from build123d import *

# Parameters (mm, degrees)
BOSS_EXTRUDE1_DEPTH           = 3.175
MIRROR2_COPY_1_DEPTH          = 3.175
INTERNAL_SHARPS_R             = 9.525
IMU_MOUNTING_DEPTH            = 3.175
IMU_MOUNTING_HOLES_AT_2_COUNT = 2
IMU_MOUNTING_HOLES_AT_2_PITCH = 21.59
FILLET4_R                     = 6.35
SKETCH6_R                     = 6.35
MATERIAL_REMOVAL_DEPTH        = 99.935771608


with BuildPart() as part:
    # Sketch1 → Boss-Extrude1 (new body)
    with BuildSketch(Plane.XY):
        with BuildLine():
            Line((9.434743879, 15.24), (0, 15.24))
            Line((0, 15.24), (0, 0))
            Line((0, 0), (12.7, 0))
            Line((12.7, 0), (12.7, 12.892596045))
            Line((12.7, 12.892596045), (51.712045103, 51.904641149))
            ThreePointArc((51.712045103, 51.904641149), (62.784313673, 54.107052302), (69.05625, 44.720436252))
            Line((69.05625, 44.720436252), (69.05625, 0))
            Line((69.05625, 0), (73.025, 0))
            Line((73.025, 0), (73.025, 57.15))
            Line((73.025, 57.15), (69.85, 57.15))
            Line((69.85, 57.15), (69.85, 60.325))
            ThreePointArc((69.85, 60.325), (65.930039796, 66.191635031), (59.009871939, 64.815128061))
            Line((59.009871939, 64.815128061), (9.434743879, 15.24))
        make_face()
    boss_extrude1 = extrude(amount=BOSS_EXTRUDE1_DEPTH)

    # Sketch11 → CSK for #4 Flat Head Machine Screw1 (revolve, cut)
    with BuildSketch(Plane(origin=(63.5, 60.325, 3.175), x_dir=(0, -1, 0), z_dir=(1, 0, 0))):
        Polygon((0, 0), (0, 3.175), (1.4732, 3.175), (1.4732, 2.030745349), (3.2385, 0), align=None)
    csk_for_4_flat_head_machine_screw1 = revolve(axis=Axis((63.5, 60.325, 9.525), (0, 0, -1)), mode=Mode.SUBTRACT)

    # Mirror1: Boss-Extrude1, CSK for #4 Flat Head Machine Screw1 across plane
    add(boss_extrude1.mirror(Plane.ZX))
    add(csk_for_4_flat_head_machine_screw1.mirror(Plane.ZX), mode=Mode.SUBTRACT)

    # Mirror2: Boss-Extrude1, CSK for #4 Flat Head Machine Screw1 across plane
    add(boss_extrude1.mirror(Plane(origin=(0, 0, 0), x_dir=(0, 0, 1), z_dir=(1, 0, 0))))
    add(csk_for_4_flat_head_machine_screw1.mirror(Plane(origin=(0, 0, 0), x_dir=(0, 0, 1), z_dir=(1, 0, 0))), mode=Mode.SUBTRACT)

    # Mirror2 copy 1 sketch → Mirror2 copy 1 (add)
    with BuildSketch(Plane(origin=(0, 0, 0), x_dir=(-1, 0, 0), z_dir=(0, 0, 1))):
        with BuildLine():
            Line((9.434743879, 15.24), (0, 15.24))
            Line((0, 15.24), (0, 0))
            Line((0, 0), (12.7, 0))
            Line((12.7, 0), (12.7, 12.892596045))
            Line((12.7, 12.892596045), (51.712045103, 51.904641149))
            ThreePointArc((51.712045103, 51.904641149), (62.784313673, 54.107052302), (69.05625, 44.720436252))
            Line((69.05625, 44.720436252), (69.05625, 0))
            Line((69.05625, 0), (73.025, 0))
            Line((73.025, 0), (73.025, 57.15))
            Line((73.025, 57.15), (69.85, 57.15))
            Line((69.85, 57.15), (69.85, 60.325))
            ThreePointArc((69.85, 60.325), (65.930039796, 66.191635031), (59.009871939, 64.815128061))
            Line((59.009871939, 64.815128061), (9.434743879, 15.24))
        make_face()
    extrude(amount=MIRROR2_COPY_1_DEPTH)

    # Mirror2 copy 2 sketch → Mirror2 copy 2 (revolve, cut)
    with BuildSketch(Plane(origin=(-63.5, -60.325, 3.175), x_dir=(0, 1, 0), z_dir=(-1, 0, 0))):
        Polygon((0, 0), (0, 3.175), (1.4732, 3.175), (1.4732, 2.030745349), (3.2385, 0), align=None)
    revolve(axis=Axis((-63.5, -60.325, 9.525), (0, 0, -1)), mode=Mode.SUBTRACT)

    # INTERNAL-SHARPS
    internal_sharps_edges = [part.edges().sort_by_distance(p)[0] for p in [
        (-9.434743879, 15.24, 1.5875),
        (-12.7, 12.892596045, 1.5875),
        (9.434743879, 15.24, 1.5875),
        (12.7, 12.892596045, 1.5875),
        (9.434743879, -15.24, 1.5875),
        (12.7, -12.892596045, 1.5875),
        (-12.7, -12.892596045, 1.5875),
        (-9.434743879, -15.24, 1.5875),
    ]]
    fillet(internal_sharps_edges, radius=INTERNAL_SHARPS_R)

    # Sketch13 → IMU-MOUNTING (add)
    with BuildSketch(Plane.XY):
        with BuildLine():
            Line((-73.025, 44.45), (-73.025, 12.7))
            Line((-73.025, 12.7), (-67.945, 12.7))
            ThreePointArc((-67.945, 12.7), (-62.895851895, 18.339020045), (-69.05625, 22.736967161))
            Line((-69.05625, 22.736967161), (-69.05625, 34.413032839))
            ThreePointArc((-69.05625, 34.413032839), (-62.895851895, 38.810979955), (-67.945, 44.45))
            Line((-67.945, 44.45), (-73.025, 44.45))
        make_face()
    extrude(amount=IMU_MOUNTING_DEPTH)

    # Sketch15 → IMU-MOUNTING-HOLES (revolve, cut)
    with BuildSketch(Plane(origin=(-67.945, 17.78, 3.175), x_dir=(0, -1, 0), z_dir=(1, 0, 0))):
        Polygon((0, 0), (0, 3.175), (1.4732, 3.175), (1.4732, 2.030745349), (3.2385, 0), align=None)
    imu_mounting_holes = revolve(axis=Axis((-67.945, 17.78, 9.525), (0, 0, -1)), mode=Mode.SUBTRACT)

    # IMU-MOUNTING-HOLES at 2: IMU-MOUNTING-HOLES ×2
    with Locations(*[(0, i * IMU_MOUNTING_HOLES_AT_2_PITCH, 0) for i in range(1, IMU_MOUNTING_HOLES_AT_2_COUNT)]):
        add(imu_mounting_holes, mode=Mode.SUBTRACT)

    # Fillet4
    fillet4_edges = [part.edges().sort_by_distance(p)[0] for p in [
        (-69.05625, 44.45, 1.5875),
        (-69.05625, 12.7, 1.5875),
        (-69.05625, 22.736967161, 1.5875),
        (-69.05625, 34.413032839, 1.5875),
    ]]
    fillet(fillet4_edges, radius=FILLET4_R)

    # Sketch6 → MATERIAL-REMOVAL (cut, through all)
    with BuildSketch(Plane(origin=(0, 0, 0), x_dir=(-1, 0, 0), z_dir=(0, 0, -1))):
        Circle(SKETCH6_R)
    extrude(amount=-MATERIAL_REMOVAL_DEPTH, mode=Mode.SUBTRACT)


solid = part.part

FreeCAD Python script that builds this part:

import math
import FreeCAD as App
import Part
import Sketcher
from FreeCAD import Vector
Q = App.Units.Quantity


def edges_at(feature, points):
    """Names of the edges that pass closest to the given points."""
    edges = feature.Shape.Edges
    near = lambda p: min(range(len(edges)), key=lambda i: edges[i].distToShape(Part.Vertex(*p))[0])
    return sorted({f"Edge{near(p) + 1}" for p in points})

doc = App.newDocument("Part")
body = doc.addObject("PartDesign::Body", "Body")

# Sketch on XY plane
sketch1 = body.newObject("Sketcher::SketchObject", "Sketch")
sketch1.AttachmentSupport = (doc.getObject("XY_Plane"), [""])
sketch1.MapMode = "FlatFace"
sketch1.addGeometry([
    Part.LineSegment(Vector(9.4, 15.2, 0), Vector(0, 15.2, 0)),  # 0
    Part.LineSegment(Vector(0, 15.2, 0), Vector(0, 0, 0)),  # 1
    Part.LineSegment(Vector(0, 0, 0), Vector(12.7, 0, 0)),  # 2
    Part.LineSegment(Vector(12.7, 0, 0), Vector(12.7, 12.9, 0)),  # 3
    Part.LineSegment(Vector(12.7, 12.9, 0), Vector(51.7, 51.9, 0)),  # 4
    Part.ArcOfCircle(Part.Circle(Vector(58.9, 44.7, 0), Vector(0, 0, 1), 10.2), math.radians(0), math.radians(135)),  # 5
    Part.LineSegment(Vector(69.1, 44.7, 0), Vector(69.1, 0, 0)),  # 6
    Part.LineSegment(Vector(69.1, 0, 0), Vector(73, 0, 0)),  # 7
    Part.LineSegment(Vector(73, 0, 0), Vector(73, 57.1, 0)),  # 8
    Part.LineSegment(Vector(73, 57.1, 0), Vector(69.8, 57.1, 0)),  # 9
    Part.LineSegment(Vector(69.8, 57.1, 0), Vector(69.8, 60.3, 0)),  # 10
    Part.ArcOfCircle(Part.Circle(Vector(63.5, 60.3, 0), Vector(0, 0, 1), 6.4), math.radians(0), math.radians(135)),  # 11
    Part.LineSegment(Vector(59, 64.8, 0), Vector(9.4, 15.2, 0)),  # 12
], False)
sketch1.addConstraint([
    Sketcher.Constraint("Coincident", 0, 2, 1, 1),
    Sketcher.Constraint("Coincident", 1, 2, 2, 1),
    Sketcher.Constraint("Coincident", 2, 2, 3, 1),
    Sketcher.Constraint("Coincident", 3, 2, 4, 1),
    Sketcher.Constraint("Tangent", 4, 2, 5, 2),
    Sketcher.Constraint("Tangent", 5, 1, 6, 1),
    Sketcher.Constraint("Coincident", 6, 2, 7, 1),
    Sketcher.Constraint("Coincident", 7, 2, 8, 1),
    Sketcher.Constraint("Coincident", 8, 2, 9, 1),
    Sketcher.Constraint("Coincident", 9, 2, 10, 1),
    Sketcher.Constraint("Tangent", 10, 2, 11, 1),
    Sketcher.Constraint("Tangent", 11, 2, 12, 1),
    Sketcher.Constraint("Coincident", 12, 2, 0, 1),
    Sketcher.Constraint("Horizontal", 0),
    Sketcher.Constraint("Vertical", 1),
    Sketcher.Constraint("Horizontal", 2),
    Sketcher.Constraint("Vertical", 3),
    Sketcher.Constraint("Vertical", 6),
    Sketcher.Constraint("Horizontal", 7),
    Sketcher.Constraint("Vertical", 8),
    Sketcher.Constraint("Horizontal", 9),
    Sketcher.Constraint("Vertical", 10),
    Sketcher.Constraint("Coincident", 1, 2, -1, 1),
    Sketcher.Constraint("PointOnObject", 6, 2, -1),
    Sketcher.Constraint("Parallel", 4, 12),
    Sketcher.Constraint("Equal", 9, 10),
    Sketcher.Constraint("Radius", 5, Q("0.4 in")),
    Sketcher.Constraint("Radius", 11, Q("0.25 in")),
    Sketcher.Constraint("DistanceX", 2, 1, 2, 2, Q("0.5 in")),
    Sketcher.Constraint("DistanceY", 1, 2, 1, 1, Q("0.6 in")),
    Sketcher.Constraint("Angle", 4, Q("45 deg")),
    Sketcher.Constraint("DistanceX", 2, 2, 11, 3, Q("2 in")),
    Sketcher.Constraint("DistanceY", 8, 1, 8, 2, Q("2.25 in")),
    Sketcher.Constraint("DistanceX", 7, 1, 7, 2, Q("0.15625 in")),
    Sketcher.Constraint("DistanceX", 9, 2, 9, 1, Q("0.125 in")),
    Sketcher.Constraint("DistanceY", 3, 1, 3, 2, Q("12.892596 mm")),
])
pad1 = body.newObject("PartDesign::Pad", "Pad")
pad1.Profile = sketch1
pad1.Length = Q("0.125 in")

# Sketch on YZ plane
sketch2 = body.newObject("Sketcher::SketchObject", "Sketch001")
sketch2.AttachmentSupport = (doc.getObject("YZ_Plane"), [""])
sketch2.MapMode = "FlatFace"
sketch2.AttachmentOffset = App.Placement(Vector(0, 0, 2.5 * 25.4), App.Rotation())
sketch2.addGeometry([
    Part.LineSegment(Vector(60.3, 0, 0), Vector(60.3, 3.2, 0)),  # 0
    Part.LineSegment(Vector(60.3, 3.2, 0), Vector(57.1, 3.2, 0)),  # 1
    Part.LineSegment(Vector(57.1, 3.2, 0), Vector(58.9, 1.1, 0)),  # 2
    Part.LineSegment(Vector(58.9, 1.1, 0), Vector(58.9, 0, 0)),  # 3
    Part.LineSegment(Vector(58.9, 0, 0), Vector(60.3, 0, 0)),  # 4
], False)
sketch2.addGeometry(Part.LineSegment(Vector(60.3, 3.2, 0), Vector(60.3, 0, 0)), True)  # axis
sketch2.addConstraint([
    Sketcher.Constraint("Coincident", 0, 2, 1, 1),
    Sketcher.Constraint("Coincident", 1, 2, 2, 1),
    Sketcher.Constraint("Coincident", 2, 2, 3, 1),
    Sketcher.Constraint("Coincident", 3, 2, 4, 1),
    Sketcher.Constraint("Coincident", 4, 2, 0, 1),
    Sketcher.Constraint("Vertical", 0),
    Sketcher.Constraint("Horizontal", 1),
    Sketcher.Constraint("Vertical", 3),
    Sketcher.Constraint("Horizontal", 4),
    Sketcher.Constraint("Vertical", 5),
    Sketcher.Constraint("Coincident", 5, 1, 0, 2),
    Sketcher.Constraint("PointOnObject", 3, 2, -1),
    Sketcher.Constraint("PointOnObject", 5, 2, -1),
    Sketcher.Constraint("Angle", 2, Q("-49 deg")),
    Sketcher.Constraint("DistanceX", 4, 1, 4, 2, Q("0.058 in")),
    Sketcher.Constraint("DistanceY", 0, 1, 0, 2, Q("0.125 in")),
    Sketcher.Constraint("DistanceX", 1, 2, 1, 1, Q("0.1275 in")),
    Sketcher.Constraint("DistanceX", -1, 1, 0, 2, Q("2.375 in")),
])
groove = body.newObject("PartDesign::Groove", "Groove")
groove.Profile = sketch2
groove.ReferenceAxis = (sketch2, ["Axis0"])
groove.Angle = 360
doc.recompute()

mirrored = body.newObject("PartDesign::Mirrored", "Mirrored")
mirrored.Originals = [pad1, groove]
mirrored.MirrorPlane = (doc.getObject("XZ_Plane"), [""])
body.Tip = mirrored
doc.recompute()

mirrored2 = body.newObject("PartDesign::Mirrored", "Mirrored001")
mirrored2.Originals = [pad1, groove]
mirrored2.MirrorPlane = (doc.getObject("YZ_Plane"), [""])
body.Tip = mirrored2

# Sketch on XY plane
sketch3 = body.newObject("Sketcher::SketchObject", "Sketch002")
sketch3.AttachmentSupport = (doc.getObject("XY_Plane"), [""])
sketch3.MapMode = "FlatFace"
sketch3.addGeometry([
    Part.LineSegment(Vector(-9.4, -15.2, 0), Vector(0, -15.2, 0)),  # 0
    Part.LineSegment(Vector(0, -15.2, 0), Vector(0, 0, 0)),  # 1
    Part.LineSegment(Vector(0, 0, 0), Vector(-12.7, 0, 0)),  # 2
    Part.LineSegment(Vector(-12.7, 0, 0), Vector(-12.7, -12.9, 0)),  # 3
    Part.LineSegment(Vector(-12.7, -12.9, 0), Vector(-51.7, -51.9, 0)),  # 4
    Part.ArcOfCircle(Part.Circle(Vector(-58.9, -44.7, 0), Vector(0, 0, 1), 10.2), math.radians(180), math.radians(315)),  # 5
    Part.LineSegment(Vector(-69.1, -44.7, 0), Vector(-69.1, 0, 0)),  # 6
    Part.LineSegment(Vector(-69.1, 0, 0), Vector(-73, 0, 0)),  # 7
    Part.LineSegment(Vector(-73, 0, 0), Vector(-73, -57.1, 0)),  # 8
    Part.LineSegment(Vector(-73, -57.1, 0), Vector(-69.8, -57.1, 0)),  # 9
    Part.LineSegment(Vector(-69.8, -57.1, 0), Vector(-69.8, -60.3, 0)),  # 10
    Part.ArcOfCircle(Part.Circle(Vector(-63.5, -60.3, 0), Vector(0, 0, 1), 6.4), math.radians(-180), math.radians(-45)),  # 11
    Part.LineSegment(Vector(-59, -64.8, 0), Vector(-9.4, -15.2, 0)),  # 12
], False)
sketch3.addConstraint([
    Sketcher.Constraint("Coincident", 0, 2, 1, 1),
    Sketcher.Constraint("Coincident", 1, 2, 2, 1),
    Sketcher.Constraint("Coincident", 2, 2, 3, 1),
    Sketcher.Constraint("Coincident", 3, 2, 4, 1),
    Sketcher.Constraint("Tangent", 4, 2, 5, 2),
    Sketcher.Constraint("Tangent", 5, 1, 6, 1),
    Sketcher.Constraint("Coincident", 6, 2, 7, 1),
    Sketcher.Constraint("Coincident", 7, 2, 8, 1),
    Sketcher.Constraint("Coincident", 8, 2, 9, 1),
    Sketcher.Constraint("Coincident", 9, 2, 10, 1),
    Sketcher.Constraint("Tangent", 10, 2, 11, 1),
    Sketcher.Constraint("Tangent", 11, 2, 12, 1),
    Sketcher.Constraint("Coincident", 12, 2, 0, 1),
    Sketcher.Constraint("Horizontal", 0),
    Sketcher.Constraint("Vertical", 1),
    Sketcher.Constraint("Horizontal", 2),
    Sketcher.Constraint("Vertical", 3),
    Sketcher.Constraint("Vertical", 6),
    Sketcher.Constraint("Horizontal", 7),
    Sketcher.Constraint("Vertical", 8),
    Sketcher.Constraint("Horizontal", 9),
    Sketcher.Constraint("Vertical", 10),
    Sketcher.Constraint("Coincident", 1, 2, -1, 1),
    Sketcher.Constraint("PointOnObject", 6, 2, -1),
    Sketcher.Constraint("Parallel", 4, 12),
    Sketcher.Constraint("Equal", 9, 10),
    Sketcher.Constraint("Radius", 5, Q("0.4 in")),
    Sketcher.Constraint("Radius", 11, Q("0.25 in")),
    Sketcher.Constraint("DistanceX", 2, 2, 2, 1, Q("0.5 in")),
    Sketcher.Constraint("DistanceY", 1, 1, 1, 2, Q("0.6 in")),
    Sketcher.Constraint("Angle", 4, Q("-135 deg")),
    Sketcher.Constraint("DistanceX", 11, 3, 2, 2, Q("2 in")),
    Sketcher.Constraint("DistanceY", 8, 2, 8, 1, Q("2.25 in")),
    Sketcher.Constraint("DistanceX", 7, 2, 7, 1, Q("0.15625 in")),
    Sketcher.Constraint("DistanceX", 9, 1, 9, 2, Q("0.125 in")),
    Sketcher.Constraint("DistanceY", 3, 2, 3, 1, Q("12.892596 mm")),
])
pad2 = body.newObject("PartDesign::Pad", "Pad001")
pad2.Profile = sketch3
pad2.Length = Q("0.125 in")

# Sketch on YZ plane
sketch4 = body.newObject("Sketcher::SketchObject", "Sketch003")
sketch4.AttachmentSupport = (doc.getObject("YZ_Plane"), [""])
sketch4.MapMode = "FlatFace"
sketch4.AttachmentOffset = App.Placement(Vector(0, 0, -2.5 * 25.4), App.Rotation())
sketch4.addGeometry([
    Part.LineSegment(Vector(-60.3, 0, 0), Vector(-60.3, 3.2, 0)),  # 0
    Part.LineSegment(Vector(-60.3, 3.2, 0), Vector(-57.1, 3.2, 0)),  # 1
    Part.LineSegment(Vector(-57.1, 3.2, 0), Vector(-58.9, 1.1, 0)),  # 2
    Part.LineSegment(Vector(-58.9, 1.1, 0), Vector(-58.9, 0, 0)),  # 3
    Part.LineSegment(Vector(-58.9, 0, 0), Vector(-60.3, 0, 0)),  # 4
], False)
sketch4.addGeometry(Part.LineSegment(Vector(-60.3, 3.2, 0), Vector(-60.3, 0, 0)), True)  # axis
sketch4.addConstraint([
    Sketcher.Constraint("Coincident", 0, 2, 1, 1),
    Sketcher.Constraint("Coincident", 1, 2, 2, 1),
    Sketcher.Constraint("Coincident", 2, 2, 3, 1),
    Sketcher.Constraint("Coincident", 3, 2, 4, 1),
    Sketcher.Constraint("Coincident", 4, 2, 0, 1),
    Sketcher.Constraint("Vertical", 0),
    Sketcher.Constraint("Horizontal", 1),
    Sketcher.Constraint("Vertical", 3),
    Sketcher.Constraint("Horizontal", 4),
    Sketcher.Constraint("Vertical", 5),
    Sketcher.Constraint("Coincident", 5, 1, 0, 2),
    Sketcher.Constraint("PointOnObject", 3, 2, -1),
    Sketcher.Constraint("PointOnObject", 5, 2, -1),
    Sketcher.Constraint("Angle", 2, Q("-131 deg")),
    Sketcher.Constraint("DistanceX", 4, 2, 4, 1, Q("0.058 in")),
    Sketcher.Constraint("DistanceY", 0, 1, 0, 2, Q("0.125 in")),
    Sketcher.Constraint("DistanceX", 1, 1, 1, 2, Q("0.1275 in")),
    Sketcher.Constraint("DistanceX", 0, 2, -1, 1, Q("2.375 in")),
])
groove2 = body.newObject("PartDesign::Groove", "Groove001")
groove2.Profile = sketch4
groove2.ReferenceAxis = (sketch4, ["Axis0"])
groove2.Angle = 360
doc.recompute()

fillet = body.newObject("PartDesign::Fillet", "Fillet")
fillet.Base = (groove2, edges_at(groove2, [
    (-9.435, 15.24, 1.587),
    (-12.7, 12.893, 1.587),
    (9.435, 15.24, 1.587),
    (12.7, 12.893, 1.587),
    (9.435, -15.24, 1.587),
    (12.7, -12.893, 1.587),
    (-12.7, -12.893, 1.587),
    (-9.435, -15.24, 1.587),
]))
fillet.Radius = Q("0.375 in")

# Sketch on XY plane
sketch5 = body.newObject("Sketcher::SketchObject", "Sketch004")
sketch5.AttachmentSupport = (doc.getObject("XY_Plane"), [""])
sketch5.MapMode = "FlatFace"
sketch5.addGeometry([
    Part.LineSegment(Vector(-73, 44, 0), Vector(-73, 13, 0)),  # 0
    Part.LineSegment(Vector(-73, 13, 0), Vector(-68, 13, 0)),  # 1
    Part.ArcOfCircle(Part.Circle(Vector(-68, 18, 0), Vector(0, 0, 1), 5), math.radians(-90), math.radians(103)),  # 2
    Part.LineSegment(Vector(-69, 23, 0), Vector(-69, 34, 0)),  # 3
    Part.ArcOfCircle(Part.Circle(Vector(-68, 39, 0), Vector(0, 0, 1), 5), math.radians(-103), math.radians(90)),  # 4
    Part.LineSegment(Vector(-68, 44, 0), Vector(-73, 44, 0)),  # 5
], False)
sketch5.addConstraint([
    Sketcher.Constraint("Coincident", 0, 2, 1, 1),
    Sketcher.Constraint("Tangent", 1, 2, 2, 1),
    Sketcher.Constraint("Coincident", 2, 2, 3, 1),
    Sketcher.Constraint("Coincident", 3, 2, 4, 1),
    Sketcher.Constraint("Tangent", 4, 2, 5, 1),
    Sketcher.Constraint("Coincident", 5, 2, 0, 1),
    Sketcher.Constraint("Vertical", 0),
    Sketcher.Constraint("Horizontal", 1),
    Sketcher.Constraint("Vertical", 3),
    Sketcher.Constraint("Horizontal", 5),
    Sketcher.Constraint("Equal", 2, 4),
    Sketcher.Constraint("Vertical", 2, 3, 4, 3),
    Sketcher.Constraint("Radius", 2, Q("0.2 in")),
    Sketcher.Constraint("DistanceX", 1, 1, 1, 2, Q("0.2 in")),
    Sketcher.Constraint("DistanceY", 0, 2, 0, 1, Q("1.25 in")),
    Sketcher.Constraint("DistanceY", -1, 1, 2, 3, Q("0.7 in")),
    Sketcher.Constraint("DistanceX", 2, 3, -1, 1, Q("2.675 in")),
    Sketcher.Constraint("DistanceX", 2, 2, -1, 1, Q("2.71875 in")),
])
pad3 = body.newObject("PartDesign::Pad", "Pad002")
pad3.Profile = sketch5
pad3.Length = Q("0.125 in")

# Sketch on YZ plane
sketch6 = body.newObject("Sketcher::SketchObject", "Sketch005")
sketch6.AttachmentSupport = (doc.getObject("YZ_Plane"), [""])
sketch6.MapMode = "FlatFace"
sketch6.AttachmentOffset = App.Placement(Vector(0, 0, -2.675 * 25.4), App.Rotation())
sketch6.addGeometry([
    Part.LineSegment(Vector(17.8, 0, 0), Vector(17.8, 3.2, 0)),  # 0
    Part.LineSegment(Vector(17.8, 3.2, 0), Vector(14.5, 3.2, 0)),  # 1
    Part.LineSegment(Vector(14.5, 3.2, 0), Vector(16.3, 1.1, 0)),  # 2
    Part.LineSegment(Vector(16.3, 1.1, 0), Vector(16.3, 0, 0)),  # 3
    Part.LineSegment(Vector(16.3, 0, 0), Vector(17.8, 0, 0)),  # 4
], False)
sketch6.addGeometry(Part.LineSegment(Vector(17.8, 3.2, 0), Vector(17.8, 0, 0)), True)  # axis
sketch6.addConstraint([
    Sketcher.Constraint("Coincident", 0, 2, 1, 1),
    Sketcher.Constraint("Coincident", 1, 2, 2, 1),
    Sketcher.Constraint("Coincident", 2, 2, 3, 1),
    Sketcher.Constraint("Coincident", 3, 2, 4, 1),
    Sketcher.Constraint("Coincident", 4, 2, 0, 1),
    Sketcher.Constraint("Vertical", 0),
    Sketcher.Constraint("Horizontal", 1),
    Sketcher.Constraint("Vertical", 3),
    Sketcher.Constraint("Horizontal", 4),
    Sketcher.Constraint("Vertical", 5),
    Sketcher.Constraint("Coincident", 5, 1, 0, 2),
    Sketcher.Constraint("PointOnObject", 3, 2, -1),
    Sketcher.Constraint("PointOnObject", 5, 2, -1),
    Sketcher.Constraint("Angle", 2, Q("-49 deg")),
    Sketcher.Constraint("DistanceX", -1, 1, 0, 2, Q("0.7 in")),
    Sketcher.Constraint("DistanceX", 4, 1, 4, 2, Q("0.058 in")),
    Sketcher.Constraint("DistanceY", 0, 1, 0, 2, Q("0.125 in")),
    Sketcher.Constraint("DistanceX", 1, 2, 1, 1, Q("0.1275 in")),
])
groove3 = body.newObject("PartDesign::Groove", "Groove002")
groove3.Profile = sketch6
groove3.ReferenceAxis = (sketch6, ["Axis0"])
groove3.Angle = 360
doc.recompute()

linearpattern = body.newObject("PartDesign::LinearPattern", "LinearPattern")
linearpattern.Originals = [groove3]
linearpattern.Direction = (doc.getObject("Y_Axis"), [""])
linearpattern.Mode = "offset"
linearpattern.Offset = Q("0.85 in")
linearpattern.Occurrences = 2
body.Tip = linearpattern
doc.recompute()

fillet2 = body.newObject("PartDesign::Fillet", "Fillet001")
fillet2.Base = (linearpattern, edges_at(linearpattern, [
    (-69.056, 44.45, 1.587),
    (-69.056, 12.7, 1.587),
    (-69.056, 22.737, 1.587),
    (-69.056, 34.413, 1.587),
]))
fillet2.Radius = Q("0.25 in")

# Sketch on XY plane
sketch7 = body.newObject("Sketcher::SketchObject", "Sketch006")
sketch7.AttachmentSupport = (doc.getObject("XY_Plane"), [""])
sketch7.MapMode = "FlatFace"
sketch7.addGeometry(Part.Circle(Vector(0, 0, 0), Vector(0, 0, 1), 6), False)
sketch7.addConstraint([
    Sketcher.Constraint("Coincident", 0, 3, -1, 1),
    Sketcher.Constraint("Diameter", 0, Q("0.5 in")),
])
pocket1 = body.newObject("PartDesign::Pocket", "Pocket")
pocket1.Profile = sketch7
pocket1.Type = "ThroughAll"
pocket1.Reversed = True

doc.recompute()
